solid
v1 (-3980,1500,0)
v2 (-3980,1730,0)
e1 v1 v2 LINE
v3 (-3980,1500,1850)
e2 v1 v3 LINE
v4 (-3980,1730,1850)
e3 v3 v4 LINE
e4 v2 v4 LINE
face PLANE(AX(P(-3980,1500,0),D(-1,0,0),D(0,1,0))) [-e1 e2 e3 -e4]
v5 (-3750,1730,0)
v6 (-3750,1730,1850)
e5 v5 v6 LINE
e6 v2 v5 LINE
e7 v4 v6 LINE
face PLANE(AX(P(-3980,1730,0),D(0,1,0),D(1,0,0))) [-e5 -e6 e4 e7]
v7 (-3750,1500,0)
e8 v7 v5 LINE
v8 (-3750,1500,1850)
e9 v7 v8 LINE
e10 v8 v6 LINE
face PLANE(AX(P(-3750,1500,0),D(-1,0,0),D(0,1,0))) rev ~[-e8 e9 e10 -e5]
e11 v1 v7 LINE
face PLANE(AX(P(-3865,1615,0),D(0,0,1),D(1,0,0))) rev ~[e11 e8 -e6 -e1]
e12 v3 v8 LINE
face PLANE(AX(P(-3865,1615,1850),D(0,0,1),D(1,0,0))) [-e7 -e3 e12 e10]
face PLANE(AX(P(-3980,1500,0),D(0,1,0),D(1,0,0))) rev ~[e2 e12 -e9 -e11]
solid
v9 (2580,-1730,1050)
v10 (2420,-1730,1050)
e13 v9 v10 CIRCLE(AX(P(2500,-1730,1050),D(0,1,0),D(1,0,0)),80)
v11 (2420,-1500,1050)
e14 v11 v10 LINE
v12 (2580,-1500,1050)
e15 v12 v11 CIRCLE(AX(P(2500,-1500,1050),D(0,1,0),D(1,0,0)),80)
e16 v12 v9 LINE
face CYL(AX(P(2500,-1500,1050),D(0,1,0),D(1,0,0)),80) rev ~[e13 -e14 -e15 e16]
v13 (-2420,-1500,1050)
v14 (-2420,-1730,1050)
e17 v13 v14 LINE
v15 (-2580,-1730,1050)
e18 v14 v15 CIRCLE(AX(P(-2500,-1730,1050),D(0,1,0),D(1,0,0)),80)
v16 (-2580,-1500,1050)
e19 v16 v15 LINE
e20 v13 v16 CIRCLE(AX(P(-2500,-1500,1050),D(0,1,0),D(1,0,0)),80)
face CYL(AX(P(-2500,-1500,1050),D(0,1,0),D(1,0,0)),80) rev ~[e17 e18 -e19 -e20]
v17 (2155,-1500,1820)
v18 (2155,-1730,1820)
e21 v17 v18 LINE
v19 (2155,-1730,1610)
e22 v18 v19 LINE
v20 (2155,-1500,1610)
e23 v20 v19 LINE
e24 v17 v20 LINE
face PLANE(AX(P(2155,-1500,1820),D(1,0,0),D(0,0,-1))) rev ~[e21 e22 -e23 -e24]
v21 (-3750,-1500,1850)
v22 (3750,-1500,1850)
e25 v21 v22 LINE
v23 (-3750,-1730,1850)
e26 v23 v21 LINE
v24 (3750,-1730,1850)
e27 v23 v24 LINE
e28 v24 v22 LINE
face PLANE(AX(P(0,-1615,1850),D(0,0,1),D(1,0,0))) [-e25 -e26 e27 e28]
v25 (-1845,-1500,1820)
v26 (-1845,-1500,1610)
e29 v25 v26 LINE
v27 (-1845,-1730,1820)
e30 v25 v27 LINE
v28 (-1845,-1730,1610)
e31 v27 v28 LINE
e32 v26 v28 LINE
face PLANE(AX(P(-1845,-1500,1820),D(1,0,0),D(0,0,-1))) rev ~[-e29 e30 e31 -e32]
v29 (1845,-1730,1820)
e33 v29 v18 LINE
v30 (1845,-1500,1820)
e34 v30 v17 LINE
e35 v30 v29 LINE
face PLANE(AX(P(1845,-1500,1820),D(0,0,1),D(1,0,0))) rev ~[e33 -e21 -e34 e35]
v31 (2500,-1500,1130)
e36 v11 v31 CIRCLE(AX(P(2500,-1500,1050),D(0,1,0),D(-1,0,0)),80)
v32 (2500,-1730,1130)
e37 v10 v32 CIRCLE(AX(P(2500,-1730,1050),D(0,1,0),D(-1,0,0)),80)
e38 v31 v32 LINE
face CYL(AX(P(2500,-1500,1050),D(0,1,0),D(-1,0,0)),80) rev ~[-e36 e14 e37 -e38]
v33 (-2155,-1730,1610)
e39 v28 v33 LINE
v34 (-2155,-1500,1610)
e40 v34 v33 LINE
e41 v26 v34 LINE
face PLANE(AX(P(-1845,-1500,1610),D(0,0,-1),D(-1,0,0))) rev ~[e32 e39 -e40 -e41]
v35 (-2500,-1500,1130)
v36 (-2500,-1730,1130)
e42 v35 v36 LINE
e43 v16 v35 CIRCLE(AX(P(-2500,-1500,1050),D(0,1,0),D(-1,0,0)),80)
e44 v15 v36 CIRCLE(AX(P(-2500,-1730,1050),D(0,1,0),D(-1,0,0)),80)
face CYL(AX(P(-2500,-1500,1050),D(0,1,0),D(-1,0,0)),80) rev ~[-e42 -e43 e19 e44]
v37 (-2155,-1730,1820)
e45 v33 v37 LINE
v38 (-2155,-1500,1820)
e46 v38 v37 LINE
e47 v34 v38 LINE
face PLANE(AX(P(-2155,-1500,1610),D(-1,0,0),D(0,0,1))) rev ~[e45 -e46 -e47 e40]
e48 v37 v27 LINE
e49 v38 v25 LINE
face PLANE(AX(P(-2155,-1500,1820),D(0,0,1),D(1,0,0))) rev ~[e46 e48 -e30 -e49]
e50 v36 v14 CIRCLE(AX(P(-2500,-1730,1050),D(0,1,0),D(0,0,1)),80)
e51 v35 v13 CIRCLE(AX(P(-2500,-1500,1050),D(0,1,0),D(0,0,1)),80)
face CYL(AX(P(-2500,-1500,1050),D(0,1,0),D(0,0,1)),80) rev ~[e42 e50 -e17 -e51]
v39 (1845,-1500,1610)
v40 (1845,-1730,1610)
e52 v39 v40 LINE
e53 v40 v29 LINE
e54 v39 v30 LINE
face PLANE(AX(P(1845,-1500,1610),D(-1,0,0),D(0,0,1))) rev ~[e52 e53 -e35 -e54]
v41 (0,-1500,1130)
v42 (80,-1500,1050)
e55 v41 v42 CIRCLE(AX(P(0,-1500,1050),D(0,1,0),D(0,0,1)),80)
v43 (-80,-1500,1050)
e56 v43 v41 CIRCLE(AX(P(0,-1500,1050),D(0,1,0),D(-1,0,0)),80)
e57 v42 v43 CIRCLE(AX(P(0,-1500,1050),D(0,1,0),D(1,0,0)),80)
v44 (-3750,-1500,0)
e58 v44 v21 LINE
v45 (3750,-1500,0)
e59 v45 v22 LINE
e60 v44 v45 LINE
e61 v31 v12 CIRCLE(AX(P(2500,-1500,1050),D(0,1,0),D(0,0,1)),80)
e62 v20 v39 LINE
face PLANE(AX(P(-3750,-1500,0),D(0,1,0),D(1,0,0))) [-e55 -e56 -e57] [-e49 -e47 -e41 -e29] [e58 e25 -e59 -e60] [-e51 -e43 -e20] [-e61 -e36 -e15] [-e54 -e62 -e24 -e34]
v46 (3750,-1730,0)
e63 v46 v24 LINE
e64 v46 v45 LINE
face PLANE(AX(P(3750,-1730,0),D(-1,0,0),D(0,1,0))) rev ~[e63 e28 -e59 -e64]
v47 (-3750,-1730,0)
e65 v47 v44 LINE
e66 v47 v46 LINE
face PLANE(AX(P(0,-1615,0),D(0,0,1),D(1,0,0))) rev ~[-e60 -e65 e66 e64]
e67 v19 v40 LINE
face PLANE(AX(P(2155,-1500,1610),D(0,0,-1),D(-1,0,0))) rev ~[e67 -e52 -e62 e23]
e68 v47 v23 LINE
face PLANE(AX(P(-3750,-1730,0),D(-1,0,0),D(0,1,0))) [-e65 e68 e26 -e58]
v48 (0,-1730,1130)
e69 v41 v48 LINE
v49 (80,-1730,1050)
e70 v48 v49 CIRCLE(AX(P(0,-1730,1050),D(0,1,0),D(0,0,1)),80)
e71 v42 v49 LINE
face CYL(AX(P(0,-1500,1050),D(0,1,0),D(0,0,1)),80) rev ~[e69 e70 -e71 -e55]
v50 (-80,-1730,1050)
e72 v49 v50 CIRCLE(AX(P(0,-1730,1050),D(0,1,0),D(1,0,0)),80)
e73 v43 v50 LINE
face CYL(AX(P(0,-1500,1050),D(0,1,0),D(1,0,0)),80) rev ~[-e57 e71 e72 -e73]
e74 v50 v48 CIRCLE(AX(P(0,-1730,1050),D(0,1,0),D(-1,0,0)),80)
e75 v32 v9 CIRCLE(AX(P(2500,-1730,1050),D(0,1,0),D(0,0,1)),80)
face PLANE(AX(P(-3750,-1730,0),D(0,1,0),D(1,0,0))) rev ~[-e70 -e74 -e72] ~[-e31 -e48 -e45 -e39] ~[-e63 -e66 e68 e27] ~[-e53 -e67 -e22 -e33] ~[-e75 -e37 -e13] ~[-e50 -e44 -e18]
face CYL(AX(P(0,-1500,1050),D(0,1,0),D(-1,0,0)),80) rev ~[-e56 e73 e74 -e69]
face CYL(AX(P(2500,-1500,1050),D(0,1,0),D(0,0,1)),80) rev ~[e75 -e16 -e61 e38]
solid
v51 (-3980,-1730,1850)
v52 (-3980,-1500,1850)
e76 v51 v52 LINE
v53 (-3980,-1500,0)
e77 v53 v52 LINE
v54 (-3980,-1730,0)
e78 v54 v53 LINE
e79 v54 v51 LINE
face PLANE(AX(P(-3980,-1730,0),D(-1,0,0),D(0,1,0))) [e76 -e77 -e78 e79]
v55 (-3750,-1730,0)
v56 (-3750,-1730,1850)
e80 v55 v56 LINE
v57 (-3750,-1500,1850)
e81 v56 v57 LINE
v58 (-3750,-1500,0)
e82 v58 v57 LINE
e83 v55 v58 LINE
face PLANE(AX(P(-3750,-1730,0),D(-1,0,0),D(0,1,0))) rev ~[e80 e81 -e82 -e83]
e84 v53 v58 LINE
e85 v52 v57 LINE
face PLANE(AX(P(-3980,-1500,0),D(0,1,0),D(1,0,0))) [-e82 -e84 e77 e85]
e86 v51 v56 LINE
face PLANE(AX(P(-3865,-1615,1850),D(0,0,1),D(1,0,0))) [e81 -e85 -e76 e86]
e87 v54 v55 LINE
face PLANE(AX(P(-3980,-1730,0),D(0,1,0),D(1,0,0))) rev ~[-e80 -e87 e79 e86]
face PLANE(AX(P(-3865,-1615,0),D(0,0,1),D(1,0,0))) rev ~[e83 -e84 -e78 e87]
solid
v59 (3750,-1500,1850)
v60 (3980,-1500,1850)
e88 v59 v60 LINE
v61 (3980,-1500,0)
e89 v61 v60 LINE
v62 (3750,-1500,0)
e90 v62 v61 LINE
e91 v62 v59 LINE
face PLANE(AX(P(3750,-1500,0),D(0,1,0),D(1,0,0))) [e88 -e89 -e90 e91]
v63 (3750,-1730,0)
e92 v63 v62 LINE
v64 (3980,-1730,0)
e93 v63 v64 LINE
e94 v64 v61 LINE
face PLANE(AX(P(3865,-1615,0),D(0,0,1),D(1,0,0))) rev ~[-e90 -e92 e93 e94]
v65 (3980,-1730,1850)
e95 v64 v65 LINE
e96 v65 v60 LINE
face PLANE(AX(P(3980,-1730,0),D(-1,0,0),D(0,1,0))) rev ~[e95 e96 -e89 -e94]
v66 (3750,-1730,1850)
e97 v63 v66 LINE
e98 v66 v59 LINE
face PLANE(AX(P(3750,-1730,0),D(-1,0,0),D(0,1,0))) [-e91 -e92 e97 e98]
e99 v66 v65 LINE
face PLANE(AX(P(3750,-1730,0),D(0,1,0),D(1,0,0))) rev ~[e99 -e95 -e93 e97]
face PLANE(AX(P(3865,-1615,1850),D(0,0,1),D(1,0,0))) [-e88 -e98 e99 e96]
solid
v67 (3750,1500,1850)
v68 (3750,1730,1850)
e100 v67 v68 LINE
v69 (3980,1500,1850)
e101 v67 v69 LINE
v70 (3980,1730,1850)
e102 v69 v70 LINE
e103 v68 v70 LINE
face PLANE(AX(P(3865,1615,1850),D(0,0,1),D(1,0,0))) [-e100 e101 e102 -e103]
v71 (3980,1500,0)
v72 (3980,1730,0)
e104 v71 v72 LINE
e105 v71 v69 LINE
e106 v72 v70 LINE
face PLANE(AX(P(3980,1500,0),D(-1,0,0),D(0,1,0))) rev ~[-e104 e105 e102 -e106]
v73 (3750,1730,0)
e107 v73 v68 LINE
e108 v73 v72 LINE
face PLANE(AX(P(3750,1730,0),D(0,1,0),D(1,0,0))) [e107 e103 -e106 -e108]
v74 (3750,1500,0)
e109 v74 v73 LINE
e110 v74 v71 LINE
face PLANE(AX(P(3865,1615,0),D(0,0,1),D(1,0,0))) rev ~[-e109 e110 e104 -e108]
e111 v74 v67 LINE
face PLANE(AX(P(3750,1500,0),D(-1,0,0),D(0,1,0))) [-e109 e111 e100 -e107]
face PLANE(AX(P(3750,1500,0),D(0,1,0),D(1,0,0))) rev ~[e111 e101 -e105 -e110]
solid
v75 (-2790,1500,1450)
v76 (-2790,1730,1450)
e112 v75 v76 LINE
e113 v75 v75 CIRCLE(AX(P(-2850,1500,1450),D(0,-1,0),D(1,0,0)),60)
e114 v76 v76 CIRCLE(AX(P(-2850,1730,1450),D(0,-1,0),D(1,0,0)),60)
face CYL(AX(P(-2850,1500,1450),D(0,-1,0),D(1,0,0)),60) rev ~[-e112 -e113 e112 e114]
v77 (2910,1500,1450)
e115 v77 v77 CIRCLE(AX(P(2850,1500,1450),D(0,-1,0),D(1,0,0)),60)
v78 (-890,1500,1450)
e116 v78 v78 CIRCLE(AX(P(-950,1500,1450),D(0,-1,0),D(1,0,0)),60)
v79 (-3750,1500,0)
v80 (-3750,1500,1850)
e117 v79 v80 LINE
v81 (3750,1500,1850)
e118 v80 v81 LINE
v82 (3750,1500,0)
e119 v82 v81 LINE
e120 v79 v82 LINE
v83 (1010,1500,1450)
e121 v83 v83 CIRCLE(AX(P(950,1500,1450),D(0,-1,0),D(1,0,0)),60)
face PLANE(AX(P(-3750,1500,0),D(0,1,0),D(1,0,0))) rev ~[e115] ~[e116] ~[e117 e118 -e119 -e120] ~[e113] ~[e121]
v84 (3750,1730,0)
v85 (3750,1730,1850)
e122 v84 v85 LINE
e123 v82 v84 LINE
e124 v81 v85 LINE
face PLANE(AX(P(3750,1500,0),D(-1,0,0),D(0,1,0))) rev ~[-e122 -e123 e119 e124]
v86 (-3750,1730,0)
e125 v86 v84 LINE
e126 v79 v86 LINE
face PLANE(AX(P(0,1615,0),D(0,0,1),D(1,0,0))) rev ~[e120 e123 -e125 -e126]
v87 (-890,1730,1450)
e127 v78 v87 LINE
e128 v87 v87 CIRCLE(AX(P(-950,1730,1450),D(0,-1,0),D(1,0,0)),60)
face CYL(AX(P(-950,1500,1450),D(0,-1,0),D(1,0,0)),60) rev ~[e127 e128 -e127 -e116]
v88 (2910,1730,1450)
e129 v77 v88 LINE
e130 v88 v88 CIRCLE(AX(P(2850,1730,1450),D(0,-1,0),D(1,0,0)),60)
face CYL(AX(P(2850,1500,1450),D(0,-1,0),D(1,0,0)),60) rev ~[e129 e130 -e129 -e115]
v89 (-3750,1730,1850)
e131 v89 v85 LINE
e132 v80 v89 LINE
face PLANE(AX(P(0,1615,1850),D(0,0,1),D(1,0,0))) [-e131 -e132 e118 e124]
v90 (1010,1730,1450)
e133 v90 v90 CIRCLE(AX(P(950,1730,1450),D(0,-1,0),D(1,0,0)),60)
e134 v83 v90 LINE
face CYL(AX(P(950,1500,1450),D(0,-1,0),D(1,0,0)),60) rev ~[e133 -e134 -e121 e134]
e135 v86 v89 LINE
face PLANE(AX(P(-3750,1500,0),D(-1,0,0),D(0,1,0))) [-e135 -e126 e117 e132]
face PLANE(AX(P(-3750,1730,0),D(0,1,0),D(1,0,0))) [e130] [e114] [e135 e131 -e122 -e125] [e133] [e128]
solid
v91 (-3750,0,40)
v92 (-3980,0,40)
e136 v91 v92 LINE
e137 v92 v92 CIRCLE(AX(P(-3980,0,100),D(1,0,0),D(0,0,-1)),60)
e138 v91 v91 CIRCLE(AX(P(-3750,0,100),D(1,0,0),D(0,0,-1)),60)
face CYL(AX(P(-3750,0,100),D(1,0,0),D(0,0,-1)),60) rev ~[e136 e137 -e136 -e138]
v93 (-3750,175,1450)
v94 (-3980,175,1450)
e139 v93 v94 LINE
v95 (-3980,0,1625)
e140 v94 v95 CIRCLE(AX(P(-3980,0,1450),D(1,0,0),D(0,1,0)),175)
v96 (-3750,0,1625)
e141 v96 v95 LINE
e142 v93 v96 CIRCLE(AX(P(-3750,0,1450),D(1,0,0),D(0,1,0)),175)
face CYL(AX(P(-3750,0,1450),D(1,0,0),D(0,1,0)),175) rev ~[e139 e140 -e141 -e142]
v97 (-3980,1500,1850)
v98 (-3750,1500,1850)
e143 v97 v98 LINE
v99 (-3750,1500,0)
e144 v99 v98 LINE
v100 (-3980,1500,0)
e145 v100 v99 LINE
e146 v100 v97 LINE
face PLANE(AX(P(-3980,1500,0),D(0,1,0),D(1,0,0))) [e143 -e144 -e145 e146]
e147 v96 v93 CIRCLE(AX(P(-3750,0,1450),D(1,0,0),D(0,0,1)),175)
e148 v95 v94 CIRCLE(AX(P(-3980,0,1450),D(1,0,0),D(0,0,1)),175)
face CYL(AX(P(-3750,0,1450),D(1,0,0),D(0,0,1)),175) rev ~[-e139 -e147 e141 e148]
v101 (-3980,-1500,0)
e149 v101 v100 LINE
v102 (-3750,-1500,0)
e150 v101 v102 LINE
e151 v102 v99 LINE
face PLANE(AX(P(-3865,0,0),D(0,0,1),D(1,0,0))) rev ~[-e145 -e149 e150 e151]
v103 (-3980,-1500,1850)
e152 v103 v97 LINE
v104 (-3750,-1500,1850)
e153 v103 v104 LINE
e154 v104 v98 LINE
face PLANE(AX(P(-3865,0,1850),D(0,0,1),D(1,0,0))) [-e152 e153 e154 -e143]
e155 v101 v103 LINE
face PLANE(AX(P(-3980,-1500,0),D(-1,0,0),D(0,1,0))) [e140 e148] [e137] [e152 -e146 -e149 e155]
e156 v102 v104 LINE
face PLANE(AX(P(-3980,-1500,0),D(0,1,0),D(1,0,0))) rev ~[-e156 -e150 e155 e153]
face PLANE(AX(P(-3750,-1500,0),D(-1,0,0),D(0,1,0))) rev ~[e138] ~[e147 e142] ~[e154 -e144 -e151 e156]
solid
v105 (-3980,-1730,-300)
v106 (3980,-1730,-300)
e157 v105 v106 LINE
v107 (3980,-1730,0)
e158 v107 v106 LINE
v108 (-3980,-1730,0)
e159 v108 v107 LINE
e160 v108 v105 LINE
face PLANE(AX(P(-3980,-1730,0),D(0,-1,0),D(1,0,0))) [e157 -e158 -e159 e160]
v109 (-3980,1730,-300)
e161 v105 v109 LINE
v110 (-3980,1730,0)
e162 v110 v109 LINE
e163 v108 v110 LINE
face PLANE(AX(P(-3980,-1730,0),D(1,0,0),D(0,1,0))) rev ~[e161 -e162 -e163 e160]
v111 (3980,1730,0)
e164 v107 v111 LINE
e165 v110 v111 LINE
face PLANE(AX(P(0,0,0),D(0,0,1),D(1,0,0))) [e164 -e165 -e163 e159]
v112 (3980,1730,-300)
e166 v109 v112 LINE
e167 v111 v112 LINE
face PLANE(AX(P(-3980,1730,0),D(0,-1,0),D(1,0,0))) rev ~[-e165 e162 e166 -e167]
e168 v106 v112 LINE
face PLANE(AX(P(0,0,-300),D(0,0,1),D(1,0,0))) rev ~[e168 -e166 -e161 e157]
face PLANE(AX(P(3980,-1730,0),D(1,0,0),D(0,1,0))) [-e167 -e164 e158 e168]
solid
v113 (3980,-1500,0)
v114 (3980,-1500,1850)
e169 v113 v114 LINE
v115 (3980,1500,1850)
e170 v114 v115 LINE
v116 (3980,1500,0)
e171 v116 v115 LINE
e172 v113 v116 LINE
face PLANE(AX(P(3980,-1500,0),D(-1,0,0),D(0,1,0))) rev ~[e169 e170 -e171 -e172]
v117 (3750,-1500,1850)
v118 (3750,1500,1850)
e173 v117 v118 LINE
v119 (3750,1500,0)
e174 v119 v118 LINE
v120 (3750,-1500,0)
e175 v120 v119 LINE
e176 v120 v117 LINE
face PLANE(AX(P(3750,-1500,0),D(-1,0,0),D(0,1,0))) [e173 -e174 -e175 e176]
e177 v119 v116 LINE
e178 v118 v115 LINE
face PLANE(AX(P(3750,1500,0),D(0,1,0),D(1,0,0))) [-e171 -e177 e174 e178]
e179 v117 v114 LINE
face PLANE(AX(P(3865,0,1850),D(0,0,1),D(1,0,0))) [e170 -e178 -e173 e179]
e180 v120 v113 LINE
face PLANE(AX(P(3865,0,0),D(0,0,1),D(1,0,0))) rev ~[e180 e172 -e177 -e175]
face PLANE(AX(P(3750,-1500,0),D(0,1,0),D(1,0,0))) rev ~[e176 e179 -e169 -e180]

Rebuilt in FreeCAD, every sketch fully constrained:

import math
import FreeCAD as App
import Part
import Sketcher

doc = App.newDocument("Part")
params = doc.addObject("Spreadsheet::Sheet", "Params")
for row, (alias, value) in enumerate([
    ("sketch1_width", "7960 mm"),
    ("sketch1_height", "3460 mm"),
    ("pad1_length", "300 mm"),
    ("sketch2_width", "230 mm"),
    ("sketch2_height", "3000 mm"),
    ("pad2_length", "1850 mm"),
    ("sketch3_diameter", "120 mm"),
    ("sketch3_radius", "175 mm"),
    ("pocket1_length", "230 mm"),
    ("sketch4_width", "230 mm"),
    ("sketch4_height", "3000 mm"),
    ("pad3_length", "1850 mm"),
    ("sketch5_width", "7500 mm"),
    ("sketch5_height", "230 mm"),
    ("pad4_length", "1850 mm"),
    ("sketch6_diameter", "120 mm"),
    ("pocket2_length", "230 mm"),
    ("sketch7_width", "7500 mm"),
    ("sketch7_height", "230 mm"),
    ("pad5_length", "1850 mm"),
    ("sketch8_radius", "80 mm"),
    ("pocket3_length", "230 mm"),
    ("sketch9_width", "310 mm"),
    ("sketch9_height", "210 mm"),
    ("pocket4_length", "230 mm"),
    ("sketch10_width", "230 mm"),
    ("pad6_length", "1850 mm"),
    ("sketch11_width", "230 mm"),
    ("pad7_length", "1850 mm"),
    ("sketch12_width", "230 mm"),
    ("pad8_length", "1850 mm"),
    ("sketch13_width", "230 mm"),
    ("pad9_length", "1850 mm"),
], start=1):
    params.set(f"A{row}", alias)
    params.set(f"B{row}", "=" + value)
    params.setAlias(f"B{row}", alias)

body = doc.addObject("PartDesign::Body", "Body")

# Sketch on XY plane
sketch1 = doc.addObject("Sketcher::SketchObject", "Sketch")
body.addObject(sketch1)
sketch1.AttachmentSupport = (doc.XY_Plane, [""])
sketch1.MapMode = "FlatFace"
sketch1.addGeometry([
    Part.LineSegment(App.Vector(-3980, 1730, 0), App.Vector(-3980, -1730, 0)),
    Part.LineSegment(App.Vector(-3980, -1730, 0), App.Vector(3980, -1730, 0)),
    Part.LineSegment(App.Vector(3980, -1730, 0), App.Vector(3980, 1730, 0)),
    Part.LineSegment(App.Vector(3980, 1730, 0), App.Vector(-3980, 1730, 0)),
], False)
sketch1.addConstraint([
    Sketcher.Constraint("Coincident", 0, 2, 1, 1),
    Sketcher.Constraint("Coincident", 1, 2, 2, 1),
    Sketcher.Constraint("Coincident", 2, 2, 3, 1),
    Sketcher.Constraint("Coincident", 3, 2, 0, 1),
    Sketcher.Constraint("Vertical", 0),
    Sketcher.Constraint("Horizontal", 1),
    Sketcher.Constraint("Vertical", 2),
    Sketcher.Constraint("Horizontal", 3),
    Sketcher.Constraint("Symmetric", 0, 2, 2, 2, -1, 1),
    Sketcher.Constraint("DistanceX", 1, 1, 1, 2, 7960.0),
    Sketcher.Constraint("DistanceY", 0, 2, 0, 1, 3460.0),
])
sketch1.setExpression("Constraints[9]", "Params.sketch1_width")
sketch1.setExpression("Constraints[10]", "Params.sketch1_height")
pad1 = doc.addObject("PartDesign::Pad", "Pad")
body.addObject(pad1)
pad1.Profile = sketch1
pad1.setExpression("Length", "Params.pad1_length")
pad1.Reversed = True
body2 = doc.addObject("PartDesign::Body", "Body001")

# Sketch on XY plane
sketch2 = doc.addObject("Sketcher::SketchObject", "Sketch001")
body2.addObject(sketch2)
sketch2.AttachmentSupport = (doc.getObject("XY_Plane001"), [""])
sketch2.MapMode = "FlatFace"
sketch2.addGeometry([
    Part.LineSegment(App.Vector(-3980, 1500, 0), App.Vector(-3980, -1500, 0)),
    Part.LineSegment(App.Vector(-3980, -1500, 0), App.Vector(-3750, -1500, 0)),
    Part.LineSegment(App.Vector(-3750, -1500, 0), App.Vector(-3750, 1500, 0)),
    Part.LineSegment(App.Vector(-3750, 1500, 0), App.Vector(-3980, 1500, 0)),
], False)
sketch2.addConstraint([
    Sketcher.Constraint("Coincident", 0, 2, 1, 1),
    Sketcher.Constraint("Coincident", 1, 2, 2, 1),
    Sketcher.Constraint("Coincident", 2, 2, 3, 1),
    Sketcher.Constraint("Coincident", 3, 2, 0, 1),
    Sketcher.Constraint("Vertical", 0),
    Sketcher.Constraint("Horizontal", 1),
    Sketcher.Constraint("Vertical", 2),
    Sketcher.Constraint("Horizontal", 3),
    Sketcher.Constraint("DistanceX", 1, 1, 1, 2, 230.0),
    Sketcher.Constraint("DistanceY", 0, 2, 0, 1, 3000.0),
    Sketcher.Constraint("DistanceX", 0, 2, -1, 1, 3980.0),
    Sketcher.Constraint("DistanceY", 0, 2, -1, 1, 1500.0),
])
sketch2.setExpression("Constraints[8]", "Params.sketch2_width")
sketch2.setExpression("Constraints[9]", "Params.sketch2_height")
pad2 = doc.addObject("PartDesign::Pad", "Pad001")
body2.addObject(pad2)
pad2.Profile = sketch2
pad2.setExpression("Length", "Params.pad2_length")

# Sketch on YZ plane
sketch3 = doc.addObject("Sketcher::SketchObject", "Sketch002")
body2.addObject(sketch3)
sketch3.AttachmentSupport = (doc.getObject("YZ_Plane001"), [""])
sketch3.MapMode = "FlatFace"
sketch3.AttachmentOffset = App.Placement(App.Vector(0, 0, -3750), App.Rotation())
sketch3.addGeometry([
    Part.Circle(App.Vector(0, 100, 0), App.Vector(0, 0, 1), 60),
    Part.ArcOfCircle(Part.Circle(App.Vector(0, 1450, 0), App.Vector(0, 0, 1), 175), math.radians(90), math.radians(360)),
    Part.ArcOfCircle(Part.Circle(App.Vector(0, 1450, 0), App.Vector(0, 0, 1), 175), math.radians(0), math.radians(90)),
], False)
sketch3.addConstraint([
    Sketcher.Constraint("Tangent", 1, 1, 2, 2),
    Sketcher.Constraint("Coincident", 2, 1, 1, 2),
    Sketcher.Constraint("PointOnObject", 0, 3, -2),
    Sketcher.Constraint("PointOnObject", 1, 3, -2),
    Sketcher.Constraint("PointOnObject", 1, 1, -2),
    Sketcher.Constraint("Horizontal", 1, 3, 2, 1),
    Sketcher.Constraint("Diameter", 0, 120.0),
    Sketcher.Constraint("Radius", 1, 175.0),
    Sketcher.Constraint("DistanceY", -1, 1, 0, 3, 100.0),
    Sketcher.Constraint("DistanceY", -1, 1, 1, 3, 1450.0),
])
sketch3.setExpression("Constraints[6]", "Params.sketch3_diameter")
sketch3.setExpression("Constraints[7]", "Params.sketch3_radius")
pocket1 = doc.addObject("PartDesign::Pocket", "Pocket")
body2.addObject(pocket1)
pocket1.Profile = sketch3
pocket1.setExpression("Length", "Params.pocket1_length")
body3 = doc.addObject("PartDesign::Body", "Body002")

# Sketch on XY plane
sketch4 = doc.addObject("Sketcher::SketchObject", "Sketch003")
body3.addObject(sketch4)
sketch4.AttachmentSupport = (doc.getObject("XY_Plane002"), [""])
sketch4.MapMode = "FlatFace"
sketch4.addGeometry([
    Part.LineSegment(App.Vector(3750, 1500, 0), App.Vector(3750, -1500, 0)),
    Part.LineSegment(App.Vector(3750, -1500, 0), App.Vector(3980, -1500, 0)),
    Part.LineSegment(App.Vector(3980, -1500, 0), App.Vector(3980, 1500, 0)),
    Part.LineSegment(App.Vector(3980, 1500, 0), App.Vector(3750, 1500, 0)),
], False)
sketch4.addConstraint([
    Sketcher.Constraint("Coincident", 0, 2, 1, 1),
    Sketcher.Constraint("Coincident", 1, 2, 2, 1),
    Sketcher.Constraint("Coincident", 2, 2, 3, 1),
    Sketcher.Constraint("Coincident", 3, 2, 0, 1),
    Sketcher.Constraint("Vertical", 0),
    Sketcher.Constraint("Horizontal", 1),
    Sketcher.Constraint("Vertical", 2),
    Sketcher.Constraint("Horizontal", 3),
    Sketcher.Constraint("DistanceX", 1, 1, 1, 2, 230.0),
    Sketcher.Constraint("DistanceY", 0, 2, 0, 1, 3000.0),
    Sketcher.Constraint("DistanceX", -1, 1, 0, 2, 3750.0),
    Sketcher.Constraint("DistanceY", 0, 2, -1, 1, 1500.0),
])
sketch4.setExpression("Constraints[8]", "Params.sketch4_width")
sketch4.setExpression("Constraints[9]", "Params.sketch4_height")
pad3 = doc.addObject("PartDesign::Pad", "Pad002")
body3.addObject(pad3)
pad3.Profile = sketch4
pad3.setExpression("Length", "Params.pad3_length")
body4 = doc.addObject("PartDesign::Body", "Body003")

# Sketch on XY plane
sketch5 = doc.addObject("Sketcher::SketchObject", "Sketch004")
body4.addObject(sketch5)
sketch5.AttachmentSupport = (doc.getObject("XY_Plane003"), [""])
sketch5.MapMode = "FlatFace"
sketch5.addGeometry([
    Part.LineSegment(App.Vector(-3750, 1730, 0), App.Vector(-3750, 1500, 0)),
    Part.LineSegment(App.Vector(-3750, 1500, 0), App.Vector(3750, 1500, 0)),
    Part.LineSegment(App.Vector(3750, 1500, 0), App.Vector(3750, 1730, 0)),
    Part.LineSegment(App.Vector(3750, 1730, 0), App.Vector(-3750, 1730, 0)),
], False)
sketch5.addConstraint([
    Sketcher.Constraint("Coincident", 0, 2, 1, 1),
    Sketcher.Constraint("Coincident", 1, 2, 2, 1),
    Sketcher.Constraint("Coincident", 2, 2, 3, 1),
    Sketcher.Constraint("Coincident", 3, 2, 0, 1),
    Sketcher.Constraint("Vertical", 0),
    Sketcher.Constraint("Horizontal", 1),
    Sketcher.Constraint("Vertical", 2),
    Sketcher.Constraint("Horizontal", 3),
    Sketcher.Constraint("DistanceX", 1, 1, 1, 2, 7500.0),
    Sketcher.Constraint("DistanceY", 0, 2, 0, 1, 230.0),
    Sketcher.Constraint("DistanceX", 0, 2, -1, 1, 3750.0),
    Sketcher.Constraint("DistanceY", -1, 1, 0, 2, 1500.0),
])
sketch5.setExpression("Constraints[8]", "Params.sketch5_width")
sketch5.setExpression("Constraints[9]", "Params.sketch5_height")
pad4 = doc.addObject("PartDesign::Pad", "Pad003")
body4.addObject(pad4)
pad4.Profile = sketch5
pad4.setExpression("Length", "Params.pad4_length")

# Sketch on XZ plane
sketch6 = doc.addObject("Sketcher::SketchObject", "Sketch005")
body4.addObject(sketch6)
sketch6.AttachmentSupport = (doc.getObject("XZ_Plane003"), [""])
sketch6.MapMode = "FlatFace"
sketch6.AttachmentOffset = App.Placement(App.Vector(0, 0, -1500), App.Rotation())
sketch6.addGeometry([
    Part.Circle(App.Vector(-2850, 1450, 0), App.Vector(0, 0, 1), 60),
    Part.Circle(App.Vector(-950, 1450, 0), App.Vector(0, 0, 1), 60),
    Part.Circle(App.Vector(950, 1450, 0), App.Vector(0, 0, 1), 60),
    Part.Circle(App.Vector(2850, 1450, 0), App.Vector(0, 0, 1), 60),
], False)
sketch6.addConstraint([
    Sketcher.Constraint("Equal", 0, 1),
    Sketcher.Constraint("Equal", 1, 2),
    Sketcher.Constraint("Equal", 2, 3),
    Sketcher.Constraint("Symmetric", 1, 3, 2, 3, -2),
    Sketcher.Constraint("Symmetric", 0, 3, 3, 3, -2),
    Sketcher.Constraint("Horizontal", 0, 3, 1, 3),
    Sketcher.Constraint("Diameter", 0, 120.0),
    Sketcher.Constraint("DistanceX", 0, 3, -1, 1, 2850.0),
    Sketcher.Constraint("DistanceY", -1, 1, 0, 3, 1450.0),
    Sketcher.Constraint("DistanceX", 1, 3, -1, 1, 950.0),
])
sketch6.setExpression("Constraints[6]", "Params.sketch6_diameter")
pocket2 = doc.addObject("PartDesign::Pocket", "Pocket001")
body4.addObject(pocket2)
pocket2.Profile = sketch6
pocket2.setExpression("Length", "Params.pocket2_length")
body5 = doc.addObject("PartDesign::Body", "Body004")

# Sketch on XY plane
sketch7 = doc.addObject("Sketcher::SketchObject", "Sketch006")
body5.addObject(sketch7)
sketch7.AttachmentSupport = (doc.getObject("XY_Plane004"), [""])
sketch7.MapMode = "FlatFace"
sketch7.addGeometry([
    Part.LineSegment(App.Vector(-3750, -1500, 0), App.Vector(-3750, -1730, 0)),
    Part.LineSegment(App.Vector(-3750, -1730, 0), App.Vector(3750, -1730, 0)),
    Part.LineSegment(App.Vector(3750, -1730, 0), App.Vector(3750, -1500, 0)),
    Part.LineSegment(App.Vector(3750, -1500, 0), App.Vector(-3750, -1500, 0)),
], False)
sketch7.addConstraint([
    Sketcher.Constraint("Coincident", 0, 2, 1, 1),
    Sketcher.Constraint("Coincident", 1, 2, 2, 1),
    Sketcher.Constraint("Coincident", 2, 2, 3, 1),
    Sketcher.Constraint("Coincident", 3, 2, 0, 1),
    Sketcher.Constraint("Vertical", 0),
    Sketcher.Constraint("Horizontal", 1),
    Sketcher.Constraint("Vertical", 2),
    Sketcher.Constraint("Horizontal", 3),
    Sketcher.Constraint("DistanceX", 1, 1, 1, 2, 7500.0),
    Sketcher.Constraint("DistanceY", 0, 2, 0, 1, 230.0),
    Sketcher.Constraint("DistanceX", 0, 2, -1, 1, 3750.0),
    Sketcher.Constraint("DistanceY", 0, 2, -1, 1, 1730.0),
])
sketch7.setExpression("Constraints[8]", "Params.sketch7_width")
sketch7.setExpression("Constraints[9]", "Params.sketch7_height")
pad5 = doc.addObject("PartDesign::Pad", "Pad004")
body5.addObject(pad5)
pad5.Profile = sketch7
pad5.setExpression("Length", "Params.pad5_length")

# Sketch on XZ plane
sketch8 = doc.addObject("Sketcher::SketchObject", "Sketch007")
body5.addObject(sketch8)
sketch8.AttachmentSupport = (doc.getObject("XZ_Plane004"), [""])
sketch8.MapMode = "FlatFace"
sketch8.AttachmentOffset = App.Placement(App.Vector(0, 0, 1500), App.Rotation())
sketch8.addGeometry([
    Part.ArcOfCircle(Part.Circle(App.Vector(2500, 1050, 0), App.Vector(0, 0, 1), 80), math.radians(0), math.radians(90)),  # 0
    Part.ArcOfCircle(Part.Circle(App.Vector(2500, 1050, 0), App.Vector(0, 0, 1), 80), math.radians(180), math.radians(360)),  # 1
    Part.ArcOfCircle(Part.Circle(App.Vector(2500, 1050, 0), App.Vector(0, 0, 1), 80), math.radians(90), math.radians(180)),  # 2
    Part.ArcOfCircle(Part.Circle(App.Vector(0, 1050, 0), App.Vector(0, 0, 1), 80), math.radians(0), math.radians(90)),  # 3
    Part.ArcOfCircle(Part.Circle(App.Vector(0, 1050, 0), App.Vector(0, 0, 1), 80), math.radians(180), math.radians(360)),  # 4
    Part.ArcOfCircle(Part.Circle(App.Vector(0, 1050, 0), App.Vector(0, 0, 1), 80), math.radians(90), math.radians(180)),  # 5
    Part.ArcOfCircle(Part.Circle(App.Vector(-2500, 1050, 0), App.Vector(0, 0, 1), 80), math.radians(180), math.radians(360)),  # 6
    Part.ArcOfCircle(Part.Circle(App.Vector(-2500, 1050, 0), App.Vector(0, 0, 1), 80), math.radians(90), math.radians(180)),  # 7
    Part.ArcOfCircle(Part.Circle(App.Vector(-2500, 1050, 0), App.Vector(0, 0, 1), 80), math.radians(0), math.radians(90)),  # 8
], False)
sketch8.addConstraint([
    Sketcher.Constraint("Tangent", 0, 1, 1, 2),
    Sketcher.Constraint("Tangent", 1, 1, 2, 2),
    Sketcher.Constraint("Tangent", 2, 1, 0, 2),
    Sketcher.Constraint("Tangent", 3, 1, 4, 2),
    Sketcher.Constraint("Tangent", 4, 1, 5, 2),
    Sketcher.Constraint("Tangent", 5, 1, 3, 2),
    Sketcher.Constraint("Tangent", 6, 1, 7, 2),
    Sketcher.Constraint("Tangent", 7, 1, 8, 2),
    Sketcher.Constraint("Tangent", 8, 1, 6, 2),
    Sketcher.Constraint("Equal", 2, 3),
    Sketcher.Constraint("Equal", 5, 6),
    Sketcher.Constraint("Symmetric", 0, 3, 6, 3, -2),
    Sketcher.Constraint("Symmetric", 3, 1, 4, 1, -2),
    Sketcher.Constraint("PointOnObject", 5, 1, -2),
    Sketcher.Constraint("Horizontal", 2, 3, 3, 3),
    Sketcher.Constraint("Horizontal", 8, 3, 0, 1),
    Sketcher.Constraint("Horizontal", 0, 1, 1, 1),
    Sketcher.Constraint("Horizontal", 1, 1, 3, 1),
    Sketcher.Constraint("Horizontal", 4, 1, 6, 1),
    Sketcher.Constraint("Horizontal", 6, 1, 8, 1),
    Sketcher.Constraint("Vertical", 1, 3, 2, 1),
    Sketcher.Constraint("Vertical", 8, 3, 7, 1),
    Sketcher.Constraint("Radius", 0, 80.0),
    Sketcher.Constraint("DistanceX", -1, 1, 0, 3, 2500.0),
    Sketcher.Constraint("DistanceY", -1, 1, 0, 3, 1050.0),
])
sketch8.setExpression("Constraints[22]", "Params.sketch8_radius")
pocket3 = doc.addObject("PartDesign::Pocket", "Pocket002")
body5.addObject(pocket3)
pocket3.Profile = sketch8
pocket3.setExpression("Length", "Params.pocket3_length")
pocket3.Reversed = True

# Sketch on XZ plane
sketch9 = doc.addObject("Sketcher::SketchObject", "Sketch008")
body5.addObject(sketch9)
sketch9.AttachmentSupport = (doc.getObject("XZ_Plane004"), [""])
sketch9.MapMode = "FlatFace"
sketch9.AttachmentOffset = App.Placement(App.Vector(0, 0, 1500), App.Rotation())
sketch9.addGeometry([
    Part.LineSegment(App.Vector(-1845, 1820, 0), App.Vector(-1845, 1610, 0)),  # 0
    Part.LineSegment(App.Vector(-1845, 1610, 0), App.Vector(-2155, 1610, 0)),  # 1
    Part.LineSegment(App.Vector(-2155, 1610, 0), App.Vector(-2155, 1820, 0)),  # 2
    Part.LineSegment(App.Vector(-2155, 1820, 0), App.Vector(-1845, 1820, 0)),  # 3
    Part.LineSegment(App.Vector(2155, 1610, 0), App.Vector(1845, 1610, 0)),  # 4
    Part.LineSegment(App.Vector(1845, 1610, 0), App.Vector(1845, 1820, 0)),  # 5
    Part.LineSegment(App.Vector(1845, 1820, 0), App.Vector(2155, 1820, 0)),  # 6
    Part.LineSegment(App.Vector(2155, 1820, 0), App.Vector(2155, 1610, 0)),  # 7
], False)
sketch9.addConstraint([
    Sketcher.Constraint("Coincident", 0, 2, 1, 1),
    Sketcher.Constraint("Coincident", 1, 2, 2, 1),
    Sketcher.Constraint("Coincident", 2, 2, 3, 1),
    Sketcher.Constraint("Coincident", 3, 2, 0, 1),
    Sketcher.Constraint("Coincident", 4, 2, 5, 1),
    Sketcher.Constraint("Coincident", 5, 2, 6, 1),
    Sketcher.Constraint("Coincident", 6, 2, 7, 1),
    Sketcher.Constraint("Coincident", 7, 2, 4, 1),
    Sketcher.Constraint("Vertical", 0),
    Sketcher.Constraint("Horizontal", 1),
    Sketcher.Constraint("Vertical", 2),
    Sketcher.Constraint("Horizontal", 3),
    Sketcher.Constraint("Horizontal", 4),
    Sketcher.Constraint("Vertical", 5),
    Sketcher.Constraint("Horizontal", 6),
    Sketcher.Constraint("Vertical", 7),
    Sketcher.Constraint("Symmetric", 0, 2, 4, 2, -2),
    Sketcher.Constraint("Symmetric", 2, 2, 6, 2, -2),
    Sketcher.Constraint("DistanceX", 1, 2, 1, 1, 310.0),
    Sketcher.Constraint("DistanceY", 0, 2, 0, 1, 210.0),
    Sketcher.Constraint("DistanceX", 0, 2, -1, 1, 1845.0),
    Sketcher.Constraint("DistanceY", -1, 1, 0, 2, 1610.0),
])
sketch9.setExpression("Constraints[18]", "Params.sketch9_width")
sketch9.setExpression("Constraints[19]", "Params.sketch9_height")
pocket4 = doc.addObject("PartDesign::Pocket", "Pocket003")
body5.addObject(pocket4)
pocket4.Profile = sketch9
pocket4.setExpression("Length", "Params.pocket4_length")
pocket4.Reversed = True
body6 = doc.addObject("PartDesign::Body", "Body005")

# Sketch on XY plane
sketch10 = doc.addObject("Sketcher::SketchObject", "Sketch009")
body6.addObject(sketch10)
sketch10.AttachmentSupport = (doc.getObject("XY_Plane005"), [""])
sketch10.MapMode = "FlatFace"
sketch10.addGeometry([
    Part.LineSegment(App.Vector(-3980, -1500, 0), App.Vector(-3980, -1730, 0)),
    Part.LineSegment(App.Vector(-3980, -1730, 0), App.Vector(-3750, -1730, 0)),
    Part.LineSegment(App.Vector(-3750, -1730, 0), App.Vector(-3750, -1500, 0)),
    Part.LineSegment(App.Vector(-3750, -1500, 0), App.Vector(-3980, -1500, 0)),
], False)
sketch10.addConstraint([
    Sketcher.Constraint("Coincident", 0, 2, 1, 1),
    Sketcher.Constraint("Coincident", 1, 2, 2, 1),
    Sketcher.Constraint("Coincident", 2, 2, 3, 1),
    Sketcher.Constraint("Coincident", 3, 2, 0, 1),
    Sketcher.Constraint("Vertical", 0),
    Sketcher.Constraint("Horizontal", 1),
    Sketcher.Constraint("Vertical", 2),
    Sketcher.Constraint("Horizontal", 3),
    Sketcher.Constraint("Equal", 3, 0),
    Sketcher.Constraint("DistanceX", 1, 1, 1, 2, 230.0),
    Sketcher.Constraint("DistanceX", 0, 2, -1, 1, 3980.0),
    Sketcher.Constraint("DistanceY", 0, 2, -1, 1, 1730.0),
])
sketch10.setExpression("Constraints[9]", "Params.sketch10_width")
pad6 = doc.addObject("PartDesign::Pad", "Pad005")
body6.addObject(pad6)
pad6.Profile = sketch10
pad6.setExpression("Length", "Params.pad6_length")
body7 = doc.addObject("PartDesign::Body", "Body006")

# Sketch on XY plane
sketch11 = doc.addObject("Sketcher::SketchObject", "Sketch010")
body7.addObject(sketch11)
sketch11.AttachmentSupport = (doc.getObject("XY_Plane006"), [""])
sketch11.MapMode = "FlatFace"
sketch11.addGeometry([
    Part.LineSegment(App.Vector(-3980, 1730, 0), App.Vector(-3980, 1500, 0)),
    Part.LineSegment(App.Vector(-3980, 1500, 0), App.Vector(-3750, 1500, 0)),
    Part.LineSegment(App.Vector(-3750, 1500, 0), App.Vector(-3750, 1730, 0)),
    Part.LineSegment(App.Vector(-3750, 1730, 0), App.Vector(-3980, 1730, 0)),
], False)
sketch11.addConstraint([
    Sketcher.Constraint("Coincident", 0, 2, 1, 1),
    Sketcher.Constraint("Coincident", 1, 2, 2, 1),
    Sketcher.Constraint("Coincident", 2, 2, 3, 1),
    Sketcher.Constraint("Coincident", 3, 2, 0, 1),
    Sketcher.Constraint("Vertical", 0),
    Sketcher.Constraint("Horizontal", 1),
    Sketcher.Constraint("Vertical", 2),
    Sketcher.Constraint("Horizontal", 3),
    Sketcher.Constraint("Equal", 3, 0),
    Sketcher.Constraint("DistanceX", 1, 1, 1, 2, 230.0),
    Sketcher.Constraint("DistanceX", 0, 2, -1, 1, 3980.0),
    Sketcher.Constraint("DistanceY", -1, 1, 0, 2, 1500.0),
])
sketch11.setExpression("Constraints[9]", "Params.sketch11_width")
pad7 = doc.addObject("PartDesign::Pad", "Pad006")
body7.addObject(pad7)
pad7.Profile = sketch11
pad7.setExpression("Length", "Params.pad7_length")
body8 = doc.addObject("PartDesign::Body", "Body007")

# Sketch on XY plane
sketch12 = doc.addObject("Sketcher::SketchObject", "Sketch011")
body8.addObject(sketch12)
sketch12.AttachmentSupport = (doc.getObject("XY_Plane007"), [""])
sketch12.MapMode = "FlatFace"
sketch12.addGeometry([
    Part.LineSegment(App.Vector(3750, 1730, 0), App.Vector(3750, 1500, 0)),
    Part.LineSegment(App.Vector(3750, 1500, 0), App.Vector(3980, 1500, 0)),
    Part.LineSegment(App.Vector(3980, 1500, 0), App.Vector(3980, 1730, 0)),
    Part.LineSegment(App.Vector(3980, 1730, 0), App.Vector(3750, 1730, 0)),
], False)
sketch12.addConstraint([
    Sketcher.Constraint("Coincident", 0, 2, 1, 1),
    Sketcher.Constraint("Coincident", 1, 2, 2, 1),
    Sketcher.Constraint("Coincident", 2, 2, 3, 1),
    Sketcher.Constraint("Coincident", 3, 2, 0, 1),
    Sketcher.Constraint("Vertical", 0),
    Sketcher.Constraint("Horizontal", 1),
    Sketcher.Constraint("Vertical", 2),
    Sketcher.Constraint("Horizontal", 3),
    Sketcher.Constraint("Equal", 3, 0),
    Sketcher.Constraint("DistanceX", 1, 1, 1, 2, 230.0),
    Sketcher.Constraint("DistanceX", -1, 1, 0, 2, 3750.0),
    Sketcher.Constraint("DistanceY", -1, 1, 0, 2, 1500.0),
])
sketch12.setExpression("Constraints[9]", "Params.sketch12_width")
pad8 = doc.addObject("PartDesign::Pad", "Pad007")
body8.addObject(pad8)
pad8.Profile = sketch12
pad8.setExpression("Length", "Params.pad8_length")
body9 = doc.addObject("PartDesign::Body", "Body008")

# Sketch on XY plane
sketch13 = doc.addObject("Sketcher::SketchObject", "Sketch012")
body9.addObject(sketch13)
sketch13.AttachmentSupport = (doc.getObject("XY_Plane008"), [""])
sketch13.MapMode = "FlatFace"
sketch13.addGeometry([
    Part.LineSegment(App.Vector(3750, -1500, 0), App.Vector(3750, -1730, 0)),
    Part.LineSegment(App.Vector(3750, -1730, 0), App.Vector(3980, -1730, 0)),
    Part.LineSegment(App.Vector(3980, -1730, 0), App.Vector(3980, -1500, 0)),
    Part.LineSegment(App.Vector(3980, -1500, 0), App.Vector(3750, -1500, 0)),
], False)
sketch13.addConstraint([
    Sketcher.Constraint("Coincident", 0, 2, 1, 1),
    Sketcher.Constraint("Coincident", 1, 2, 2, 1),
    Sketcher.Constraint("Coincident", 2, 2, 3, 1),
    Sketcher.Constraint("Coincident", 3, 2, 0, 1),
    Sketcher.Constraint("Vertical", 0),
    Sketcher.Constraint("Horizontal", 1),
    Sketcher.Constraint("Vertical", 2),
    Sketcher.Constraint("Horizontal", 3),
    Sketcher.Constraint("Equal", 3, 0),
    Sketcher.Constraint("DistanceX", 1, 1, 1, 2, 230.0),
    Sketcher.Constraint("DistanceX", -1, 1, 0, 2, 3750.0),
    Sketcher.Constraint("DistanceY", 0, 2, -1, 1, 1730.0),
])
sketch13.setExpression("Constraints[9]", "Params.sketch13_width")
pad9 = doc.addObject("PartDesign::Pad", "Pad008")
body9.addObject(pad9)
pad9.Profile = sketch13
pad9.setExpression("Length", "Params.pad9_length")

doc.recompute()
